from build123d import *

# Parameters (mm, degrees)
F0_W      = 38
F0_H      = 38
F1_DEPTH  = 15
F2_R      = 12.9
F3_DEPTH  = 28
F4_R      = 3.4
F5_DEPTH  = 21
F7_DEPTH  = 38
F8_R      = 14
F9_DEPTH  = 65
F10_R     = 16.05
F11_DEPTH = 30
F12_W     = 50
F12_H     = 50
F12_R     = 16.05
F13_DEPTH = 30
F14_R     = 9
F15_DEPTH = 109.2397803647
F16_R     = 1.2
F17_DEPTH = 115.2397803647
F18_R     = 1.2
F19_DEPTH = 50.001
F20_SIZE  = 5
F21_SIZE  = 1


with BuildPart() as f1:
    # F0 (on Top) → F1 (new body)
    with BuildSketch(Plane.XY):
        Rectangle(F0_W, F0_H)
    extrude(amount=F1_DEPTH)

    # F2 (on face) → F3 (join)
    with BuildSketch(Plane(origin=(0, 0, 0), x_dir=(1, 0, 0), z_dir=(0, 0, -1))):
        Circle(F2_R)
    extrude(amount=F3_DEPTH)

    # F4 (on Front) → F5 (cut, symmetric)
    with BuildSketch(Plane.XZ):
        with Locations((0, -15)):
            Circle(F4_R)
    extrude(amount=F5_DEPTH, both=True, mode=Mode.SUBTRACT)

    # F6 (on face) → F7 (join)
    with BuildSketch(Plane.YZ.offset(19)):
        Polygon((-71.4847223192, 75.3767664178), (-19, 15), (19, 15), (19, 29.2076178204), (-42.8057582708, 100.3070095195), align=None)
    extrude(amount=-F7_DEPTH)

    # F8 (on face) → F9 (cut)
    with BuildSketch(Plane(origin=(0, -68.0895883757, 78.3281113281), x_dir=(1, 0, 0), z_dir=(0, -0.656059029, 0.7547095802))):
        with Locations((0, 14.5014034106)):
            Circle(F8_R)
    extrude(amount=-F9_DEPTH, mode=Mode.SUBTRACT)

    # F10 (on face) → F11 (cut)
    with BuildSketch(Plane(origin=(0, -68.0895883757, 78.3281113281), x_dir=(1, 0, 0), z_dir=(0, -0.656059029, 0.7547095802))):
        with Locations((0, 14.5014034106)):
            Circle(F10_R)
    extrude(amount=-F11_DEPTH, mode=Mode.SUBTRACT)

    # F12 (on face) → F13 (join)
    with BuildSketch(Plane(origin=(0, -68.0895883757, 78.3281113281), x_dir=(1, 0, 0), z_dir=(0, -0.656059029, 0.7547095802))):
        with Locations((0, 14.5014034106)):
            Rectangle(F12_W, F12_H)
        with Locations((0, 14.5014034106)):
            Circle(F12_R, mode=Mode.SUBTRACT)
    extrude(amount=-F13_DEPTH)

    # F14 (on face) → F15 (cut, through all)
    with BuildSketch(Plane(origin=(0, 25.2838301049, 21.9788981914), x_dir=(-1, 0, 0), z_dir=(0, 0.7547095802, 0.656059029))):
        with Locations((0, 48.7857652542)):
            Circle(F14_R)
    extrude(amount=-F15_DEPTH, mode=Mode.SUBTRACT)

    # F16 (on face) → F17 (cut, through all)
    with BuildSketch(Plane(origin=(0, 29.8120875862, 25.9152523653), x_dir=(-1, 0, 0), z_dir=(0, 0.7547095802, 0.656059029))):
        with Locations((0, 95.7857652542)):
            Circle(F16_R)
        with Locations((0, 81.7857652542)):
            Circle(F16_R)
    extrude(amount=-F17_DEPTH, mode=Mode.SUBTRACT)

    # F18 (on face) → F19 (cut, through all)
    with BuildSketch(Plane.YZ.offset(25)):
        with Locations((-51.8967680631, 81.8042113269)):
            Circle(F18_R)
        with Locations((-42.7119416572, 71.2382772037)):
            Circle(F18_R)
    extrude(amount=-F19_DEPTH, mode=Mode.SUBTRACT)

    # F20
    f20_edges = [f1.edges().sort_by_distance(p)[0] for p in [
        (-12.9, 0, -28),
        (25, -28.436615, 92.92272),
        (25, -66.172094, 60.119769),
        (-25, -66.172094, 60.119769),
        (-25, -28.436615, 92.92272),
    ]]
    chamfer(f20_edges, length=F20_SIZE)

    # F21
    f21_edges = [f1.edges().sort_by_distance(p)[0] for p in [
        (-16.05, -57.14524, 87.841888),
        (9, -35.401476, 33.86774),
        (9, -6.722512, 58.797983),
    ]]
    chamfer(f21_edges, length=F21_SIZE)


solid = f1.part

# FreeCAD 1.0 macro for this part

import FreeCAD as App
import Part
import Sketcher
Q = App.Units.Quantity


def edges_at(feature, points):
    """Names of the edges that pass closest to the given points."""
    edges = feature.Shape.Edges
    near = lambda p: min(range(len(edges)), key=lambda i: edges[i].distToShape(Part.Vertex(*p))[0])
    return sorted({f"Edge{near(p) + 1}" for p in points})


def add_polygon(sketch, points):
    """Adds a closed chain of lines whose ends are joined by coincident constraints."""
    first, n = sketch.GeometryCount, len(points)
    for a, b in zip(points, points[1:] + points[:1]):
        sketch.addGeometry(Part.LineSegment(App.Vector(*a, 0), App.Vector(*b, 0)), False)
    for i in range(n):
        sketch.addConstraint(Sketcher.Constraint("Coincident", first + i, 2, first + (i + 1) % n, 1))

doc = App.newDocument("Part")
params = doc.addObject("Spreadsheet::Sheet", "Params")
for row, (alias, value) in enumerate([
    ("sketch1_width", "38 mm"),
    ("pad1_length", "15 mm"),
    ("sketch2_diameter", "25.8 mm"),
    ("pad2_length", "28 mm"),
    ("sketch3_diameter", "6.8 mm"),
    ("pocket1_length", "42 mm"),
    ("sketch4_width", "38 mm"),
    ("sketch4_length", "80 mm"),
    ("sketch4_length2", "38 mm"),
    ("pad3_length", "38 mm"),
    ("sketch5_diameter", "28 mm"),
    ("pocket2_length", "65 mm"),
    ("sketch6_diameter", "32.1 mm"),
    ("pocket3_length", "30 mm"),
    ("sketch7_diameter", "32.1 mm"),
    ("sketch7_width", "50 mm"),
    ("pad4_length", "30 mm"),
    ("sketch8_diameter", "18 mm"),
    ("sketch9_diameter", "2.4 mm"),
    ("sketch10_diameter", "2.4 mm"),
    ("chamfer_size", "5 mm"),
    ("chamfer2_size", "1 mm"),
], start=1):
    params.set(f"A{row}", alias)
    params.set(f"B{row}", "=" + value)
    params.setAlias(f"B{row}", alias)

body = doc.addObject("PartDesign::Body", "Body")

sketch1 = body.newObject("Sketcher::SketchObject", "Sketch")
sketch1.AttachmentSupport = (doc.getObject("XY_Plane"), [""])
sketch1.MapMode = "FlatFace"
add_polygon(sketch1, [(-19, 19), (-19, -19), (19, -19), (19, 19)])
sketch1.addConstraint(Sketcher.Constraint("Vertical", 0))
sketch1.addConstraint(Sketcher.Constraint("Horizontal", 1))
sketch1.addConstraint(Sketcher.Constraint("Vertical", 2))
sketch1.addConstraint(Sketcher.Constraint("Horizontal", 3))
sketch1.addConstraint(Sketcher.Constraint("Symmetric", 0, 2, 2, 2, -1, 1))
sketch1.addConstraint(Sketcher.Constraint("Equal", 3, 0))
sketch1.addConstraint(Sketcher.Constraint("DistanceX", 1, 1, 1, 2, 38.0))
sketch1.setExpression("Constraints[10]", "Params.sketch1_width")
pad1 = body.newObject("PartDesign::Pad", "Pad")
pad1.Profile = sketch1
pad1.setExpression("Length", "Params.pad1_length")

sketch2 = body.newObject("Sketcher::SketchObject", "Sketch001")
sketch2.AttachmentSupport = (doc.getObject("XY_Plane"), [""])
sketch2.MapMode = "FlatFace"
sketch2.addGeometry(Part.Circle(App.Vector(0, 0, 0), App.Vector(0, 0, 1), 13), False)
sketch2.addConstraint(Sketcher.Constraint("Coincident", 0, 3, -1, 1))
sketch2.addConstraint(Sketcher.Constraint("Diameter", 0, 25.8))
sketch2.setExpression("Constraints[1]", "Params.sketch2_diameter")
pad2 = body.newObject("PartDesign::Pad", "Pad001")
pad2.Profile = sketch2
pad2.setExpression("Length", "Params.pad2_length")
pad2.Reversed = True

sketch3 = body.newObject("Sketcher::SketchObject", "Sketch002")
sketch3.AttachmentSupport = (doc.getObject("XZ_Plane"), [""])
sketch3.MapMode = "FlatFace"
sketch3.addGeometry(Part.Circle(App.Vector(0, -15, 0), App.Vector(0, 0, 1), 3.4), False)
sketch3.addConstraint(Sketcher.Constraint("PointOnObject", 0, 3, -2))
sketch3.addConstraint(Sketcher.Constraint("Diameter", 0, 6.8))
sketch3.addConstraint(Sketcher.Constraint("DistanceY", 0, 3, -1, 1, 15.0))
sketch3.setExpression("Constraints[1]", "Params.sketch3_diameter")
pocket1 = body.newObject("PartDesign::Pocket", "Pocket")
pocket1.Profile = sketch3
pocket1.setExpression("Length", "Params.pocket1_length")
pocket1.Midplane = True

sketch4 = body.newObject("Sketcher::SketchObject", "Sketch003")
sketch4.AttachmentSupport = (doc.getObject("YZ_Plane"), [""])
sketch4.MapMode = "FlatFace"
sketch4.AttachmentOffset = App.Placement(App.Vector(0, 0, 19), App.Rotation())
add_polygon(sketch4, [(-71, 75), (-19, 15), (19, 15), (19, 29), (-43, 100)])
sketch4.addConstraint(Sketcher.Constraint("Horizontal", 1))
sketch4.addConstraint(Sketcher.Constraint("Vertical", 2))
sketch4.addConstraint(Sketcher.Constraint("Parallel", 0, 3))
sketch4.addConstraint(Sketcher.Constraint("Perpendicular", 3, 4))
sketch4.addConstraint(Sketcher.Constraint("DistanceX", 1, 1, 1, 2, 38.0))
sketch4.addConstraint(Sketcher.Constraint("Angle", 0, Q("-49 deg")))
sketch4.addConstraint(Sketcher.Constraint("Distance", 0, 80.0))
sketch4.addConstraint(Sketcher.Constraint("Distance", 4, 38.0))
sketch4.addConstraint(Sketcher.Constraint("DistanceX", 0, 2, -1, 1, 19.0))
sketch4.addConstraint(Sketcher.Constraint("DistanceY", -1, 1, 0, 2, 15.0))
sketch4.setExpression("Constraints[9]", "Params.sketch4_width")
sketch4.setExpression("Constraints[11]", "Params.sketch4_length")
sketch4.setExpression("Constraints[12]", "Params.sketch4_length2")
pad3 = body.newObject("PartDesign::Pad", "Pad002")
pad3.Profile = sketch4
pad3.setExpression("Length", "Params.pad3_length")
pad3.Reversed = True

sketch5 = body.newObject("Sketcher::SketchObject", "Sketch004")
sketch5.Placement = App.Placement(App.Vector(0, -68.089588, 78.328111), App.Rotation(App.Vector(1, 0, 0), App.Vector(0, 0.75470958, 0.656059029), App.Vector(0, -0.656059029, 0.75470958), "ZXY"))
sketch5.addGeometry(Part.Circle(App.Vector(0, 15, 0), App.Vector(0, 0, 1), 14), False)
sketch5.addConstraint(Sketcher.Constraint("PointOnObject", 0, 3, -2))
sketch5.addConstraint(Sketcher.Constraint("Diameter", 0, 28.0))
sketch5.addConstraint(Sketcher.Constraint("DistanceY", -1, 1, 0, 3, 14.501403))
sketch5.setExpression("Constraints[1]", "Params.sketch5_diameter")
pocket2 = body.newObject("PartDesign::Pocket", "Pocket001")
pocket2.Profile = sketch5
pocket2.setExpression("Length", "Params.pocket2_length")

sketch6 = body.newObject("Sketcher::SketchObject", "Sketch005")
sketch6.Placement = App.Placement(App.Vector(0, -68.089588, 78.328111), App.Rotation(App.Vector(1, 0, 0), App.Vector(0, 0.75470958, 0.656059029), App.Vector(0, -0.656059029, 0.75470958), "ZXY"))
sketch6.addGeometry(Part.Circle(App.Vector(0, 15, 0), App.Vector(0, 0, 1), 16), False)
sketch6.addConstraint(Sketcher.Constraint("PointOnObject", 0, 3, -2))
sketch6.addConstraint(Sketcher.Constraint("Diameter", 0, 32.1))
sketch6.addConstraint(Sketcher.Constraint("DistanceY", -1, 1, 0, 3, 14.501403))
sketch6.setExpression("Constraints[1]", "Params.sketch6_diameter")
pocket3 = body.newObject("PartDesign::Pocket", "Pocket002")
pocket3.Profile = sketch6
pocket3.setExpression("Length", "Params.pocket3_length")

sketch7 = body.newObject("Sketcher::SketchObject", "Sketch006")
sketch7.Placement = App.Placement(App.Vector(0, -68.089588, 78.328111), App.Rotation(App.Vector(1, 0, 0), App.Vector(0, 0.75470958, 0.656059029), App.Vector(0, -0.656059029, 0.75470958), "ZXY"))
add_polygon(sketch7, [(-25, 40), (-25, -10), (25, -10), (25, 40)])
sketch7.addGeometry(Part.Circle(App.Vector(0, 15, 0), App.Vector(0, 0, 1), 16), False)
sketch7.addConstraint(Sketcher.Constraint("Vertical", 0))
sketch7.addConstraint(Sketcher.Constraint("Horizontal", 1))
sketch7.addConstraint(Sketcher.Constraint("Vertical", 2))
sketch7.addConstraint(Sketcher.Constraint("Horizontal", 3))
sketch7.addConstraint(Sketcher.Constraint("PointOnObject", 4, 3, -2))
sketch7.addConstraint(Sketcher.Constraint("Equal", 3, 0))
sketch7.addConstraint(Sketcher.Constraint("Diameter", 4, 32.1))
sketch7.addConstraint(Sketcher.Constraint("DistanceX", 1, 1, 1, 2, 50.0))
sketch7.addConstraint(Sketcher.Constraint("DistanceX", 0, 2, -1, 1, 25.0))
sketch7.addConstraint(Sketcher.Constraint("DistanceY", 0, 2, 4, 3, 25.0))
sketch7.addConstraint(Sketcher.Constraint("DistanceY", -1, 1, 4, 3, 14.501403))
sketch7.setExpression("Constraints[10]", "Params.sketch7_diameter")
sketch7.setExpression("Constraints[11]", "Params.sketch7_width")
pad4 = body.newObject("PartDesign::Pad", "Pad003")
pad4.Profile = sketch7
pad4.setExpression("Length", "Params.pad4_length")
pad4.Reversed = True

sketch8 = body.newObject("Sketcher::SketchObject", "Sketch007")
sketch8.Placement = App.Placement(App.Vector(0, 25.28383, 21.978898), App.Rotation(App.Vector(-1, 0, 0), App.Vector(0, -0.656059029, 0.75470958), App.Vector(0, 0.75470958, 0.656059029), "ZXY"))
sketch8.addGeometry(Part.Circle(App.Vector(0, 49, 0), App.Vector(0, 0, 1), 9), False)
sketch8.addConstraint(Sketcher.Constraint("PointOnObject", 0, 3, -2))
sketch8.addConstraint(Sketcher.Constraint("Diameter", 0, 18.0))
sketch8.addConstraint(Sketcher.Constraint("DistanceY", -1, 1, 0, 3, 48.785765))
sketch8.setExpression("Constraints[1]", "Params.sketch8_diameter")
pocket4 = body.newObject("PartDesign::Pocket", "Pocket003")
pocket4.Profile = sketch8
pocket4.Type = "ThroughAll"

sketch9 = body.newObject("Sketcher::SketchObject", "Sketch008")
sketch9.Placement = App.Placement(App.Vector(0, 29.812088, 25.915252), App.Rotation(App.Vector(-1, 0, 0), App.Vector(0, -0.656059029, 0.75470958), App.Vector(0, 0.75470958, 0.656059029), "ZXY"))
sketch9.addGeometry(Part.Circle(App.Vector(0, 95.8, 0), App.Vector(0, 0, 1), 1.2), False)
sketch9.addGeometry(Part.Circle(App.Vector(0, 81.8, 0), App.Vector(0, 0, 1), 1.2), False)
sketch9.addConstraint(Sketcher.Constraint("Equal", 0, 1))
sketch9.addConstraint(Sketcher.Constraint("PointOnObject", 0, 3, -2))
sketch9.addConstraint(Sketcher.Constraint("PointOnObject", 1, 3, -2))
sketch9.addConstraint(Sketcher.Constraint("Diameter", 0, 2.4))
sketch9.addConstraint(Sketcher.Constraint("DistanceY", 1, 3, 0, 3, 14.0))
sketch9.addConstraint(Sketcher.Constraint("DistanceY", -1, 1, 0, 3, 95.785765))
sketch9.setExpression("Constraints[3]", "Params.sketch9_diameter")
pocket5 = body.newObject("PartDesign::Pocket", "Pocket004")
pocket5.Profile = sketch9
pocket5.Type = "ThroughAll"

sketch10 = body.newObject("Sketcher::SketchObject", "Sketch009")
sketch10.AttachmentSupport = (doc.getObject("YZ_Plane"), [""])
sketch10.MapMode = "FlatFace"
sketch10.AttachmentOffset = App.Placement(App.Vector(0, 0, 25), App.Rotation())
sketch10.addGeometry(Part.Circle(App.Vector(-51.9, 81.8, 0), App.Vector(0, 0, 1), 1.2), False)
sketch10.addGeometry(Part.Circle(App.Vector(-42.7, 71.2, 0), App.Vector(0, 0, 1), 1.2), False)
sketch10.addConstraint(Sketcher.Constraint("Equal", 0, 1))
sketch10.addConstraint(Sketcher.Constraint("Diameter", 0, 2.4))
sketch10.addConstraint(Sketcher.Constraint("DistanceX", 0, 3, -1, 1, 51.896768))
sketch10.addConstraint(Sketcher.Constraint("DistanceY", -1, 1, 0, 3, 81.804211))
sketch10.addConstraint(Sketcher.Constraint("DistanceX", 1, 3, -1, 1, 42.711942))
sketch10.addConstraint(Sketcher.Constraint("DistanceY", -1, 1, 1, 3, 71.238277))
sketch10.setExpression("Constraints[1]", "Params.sketch10_diameter")
pocket6 = body.newObject("PartDesign::Pocket", "Pocket005")
pocket6.Profile = sketch10
pocket6.Type = "ThroughAll"
doc.recompute()

chamfer = body.newObject("PartDesign::Chamfer", "Chamfer")
chamfer.Base = (pocket6, edges_at(pocket6, [
    (-12.9, 0, -28),
    (25, -28.437, 92.923),
    (25, -66.172, 60.12),
    (-25, -66.172, 60.12),
    (-25, -28.437, 92.923),
]))
chamfer.setExpression("Size", "Params.chamfer_size")
doc.recompute()

chamfer2 = body.newObject("PartDesign::Chamfer", "Chamfer001")
chamfer2.Base = (chamfer, edges_at(chamfer, [(-16.05, -57.145, 87.842), (9, -35.401, 33.868), (9, -6.723, 58.798)]))
chamfer2.setExpression("Size", "Params.chamfer2_size")

doc.recompute()
